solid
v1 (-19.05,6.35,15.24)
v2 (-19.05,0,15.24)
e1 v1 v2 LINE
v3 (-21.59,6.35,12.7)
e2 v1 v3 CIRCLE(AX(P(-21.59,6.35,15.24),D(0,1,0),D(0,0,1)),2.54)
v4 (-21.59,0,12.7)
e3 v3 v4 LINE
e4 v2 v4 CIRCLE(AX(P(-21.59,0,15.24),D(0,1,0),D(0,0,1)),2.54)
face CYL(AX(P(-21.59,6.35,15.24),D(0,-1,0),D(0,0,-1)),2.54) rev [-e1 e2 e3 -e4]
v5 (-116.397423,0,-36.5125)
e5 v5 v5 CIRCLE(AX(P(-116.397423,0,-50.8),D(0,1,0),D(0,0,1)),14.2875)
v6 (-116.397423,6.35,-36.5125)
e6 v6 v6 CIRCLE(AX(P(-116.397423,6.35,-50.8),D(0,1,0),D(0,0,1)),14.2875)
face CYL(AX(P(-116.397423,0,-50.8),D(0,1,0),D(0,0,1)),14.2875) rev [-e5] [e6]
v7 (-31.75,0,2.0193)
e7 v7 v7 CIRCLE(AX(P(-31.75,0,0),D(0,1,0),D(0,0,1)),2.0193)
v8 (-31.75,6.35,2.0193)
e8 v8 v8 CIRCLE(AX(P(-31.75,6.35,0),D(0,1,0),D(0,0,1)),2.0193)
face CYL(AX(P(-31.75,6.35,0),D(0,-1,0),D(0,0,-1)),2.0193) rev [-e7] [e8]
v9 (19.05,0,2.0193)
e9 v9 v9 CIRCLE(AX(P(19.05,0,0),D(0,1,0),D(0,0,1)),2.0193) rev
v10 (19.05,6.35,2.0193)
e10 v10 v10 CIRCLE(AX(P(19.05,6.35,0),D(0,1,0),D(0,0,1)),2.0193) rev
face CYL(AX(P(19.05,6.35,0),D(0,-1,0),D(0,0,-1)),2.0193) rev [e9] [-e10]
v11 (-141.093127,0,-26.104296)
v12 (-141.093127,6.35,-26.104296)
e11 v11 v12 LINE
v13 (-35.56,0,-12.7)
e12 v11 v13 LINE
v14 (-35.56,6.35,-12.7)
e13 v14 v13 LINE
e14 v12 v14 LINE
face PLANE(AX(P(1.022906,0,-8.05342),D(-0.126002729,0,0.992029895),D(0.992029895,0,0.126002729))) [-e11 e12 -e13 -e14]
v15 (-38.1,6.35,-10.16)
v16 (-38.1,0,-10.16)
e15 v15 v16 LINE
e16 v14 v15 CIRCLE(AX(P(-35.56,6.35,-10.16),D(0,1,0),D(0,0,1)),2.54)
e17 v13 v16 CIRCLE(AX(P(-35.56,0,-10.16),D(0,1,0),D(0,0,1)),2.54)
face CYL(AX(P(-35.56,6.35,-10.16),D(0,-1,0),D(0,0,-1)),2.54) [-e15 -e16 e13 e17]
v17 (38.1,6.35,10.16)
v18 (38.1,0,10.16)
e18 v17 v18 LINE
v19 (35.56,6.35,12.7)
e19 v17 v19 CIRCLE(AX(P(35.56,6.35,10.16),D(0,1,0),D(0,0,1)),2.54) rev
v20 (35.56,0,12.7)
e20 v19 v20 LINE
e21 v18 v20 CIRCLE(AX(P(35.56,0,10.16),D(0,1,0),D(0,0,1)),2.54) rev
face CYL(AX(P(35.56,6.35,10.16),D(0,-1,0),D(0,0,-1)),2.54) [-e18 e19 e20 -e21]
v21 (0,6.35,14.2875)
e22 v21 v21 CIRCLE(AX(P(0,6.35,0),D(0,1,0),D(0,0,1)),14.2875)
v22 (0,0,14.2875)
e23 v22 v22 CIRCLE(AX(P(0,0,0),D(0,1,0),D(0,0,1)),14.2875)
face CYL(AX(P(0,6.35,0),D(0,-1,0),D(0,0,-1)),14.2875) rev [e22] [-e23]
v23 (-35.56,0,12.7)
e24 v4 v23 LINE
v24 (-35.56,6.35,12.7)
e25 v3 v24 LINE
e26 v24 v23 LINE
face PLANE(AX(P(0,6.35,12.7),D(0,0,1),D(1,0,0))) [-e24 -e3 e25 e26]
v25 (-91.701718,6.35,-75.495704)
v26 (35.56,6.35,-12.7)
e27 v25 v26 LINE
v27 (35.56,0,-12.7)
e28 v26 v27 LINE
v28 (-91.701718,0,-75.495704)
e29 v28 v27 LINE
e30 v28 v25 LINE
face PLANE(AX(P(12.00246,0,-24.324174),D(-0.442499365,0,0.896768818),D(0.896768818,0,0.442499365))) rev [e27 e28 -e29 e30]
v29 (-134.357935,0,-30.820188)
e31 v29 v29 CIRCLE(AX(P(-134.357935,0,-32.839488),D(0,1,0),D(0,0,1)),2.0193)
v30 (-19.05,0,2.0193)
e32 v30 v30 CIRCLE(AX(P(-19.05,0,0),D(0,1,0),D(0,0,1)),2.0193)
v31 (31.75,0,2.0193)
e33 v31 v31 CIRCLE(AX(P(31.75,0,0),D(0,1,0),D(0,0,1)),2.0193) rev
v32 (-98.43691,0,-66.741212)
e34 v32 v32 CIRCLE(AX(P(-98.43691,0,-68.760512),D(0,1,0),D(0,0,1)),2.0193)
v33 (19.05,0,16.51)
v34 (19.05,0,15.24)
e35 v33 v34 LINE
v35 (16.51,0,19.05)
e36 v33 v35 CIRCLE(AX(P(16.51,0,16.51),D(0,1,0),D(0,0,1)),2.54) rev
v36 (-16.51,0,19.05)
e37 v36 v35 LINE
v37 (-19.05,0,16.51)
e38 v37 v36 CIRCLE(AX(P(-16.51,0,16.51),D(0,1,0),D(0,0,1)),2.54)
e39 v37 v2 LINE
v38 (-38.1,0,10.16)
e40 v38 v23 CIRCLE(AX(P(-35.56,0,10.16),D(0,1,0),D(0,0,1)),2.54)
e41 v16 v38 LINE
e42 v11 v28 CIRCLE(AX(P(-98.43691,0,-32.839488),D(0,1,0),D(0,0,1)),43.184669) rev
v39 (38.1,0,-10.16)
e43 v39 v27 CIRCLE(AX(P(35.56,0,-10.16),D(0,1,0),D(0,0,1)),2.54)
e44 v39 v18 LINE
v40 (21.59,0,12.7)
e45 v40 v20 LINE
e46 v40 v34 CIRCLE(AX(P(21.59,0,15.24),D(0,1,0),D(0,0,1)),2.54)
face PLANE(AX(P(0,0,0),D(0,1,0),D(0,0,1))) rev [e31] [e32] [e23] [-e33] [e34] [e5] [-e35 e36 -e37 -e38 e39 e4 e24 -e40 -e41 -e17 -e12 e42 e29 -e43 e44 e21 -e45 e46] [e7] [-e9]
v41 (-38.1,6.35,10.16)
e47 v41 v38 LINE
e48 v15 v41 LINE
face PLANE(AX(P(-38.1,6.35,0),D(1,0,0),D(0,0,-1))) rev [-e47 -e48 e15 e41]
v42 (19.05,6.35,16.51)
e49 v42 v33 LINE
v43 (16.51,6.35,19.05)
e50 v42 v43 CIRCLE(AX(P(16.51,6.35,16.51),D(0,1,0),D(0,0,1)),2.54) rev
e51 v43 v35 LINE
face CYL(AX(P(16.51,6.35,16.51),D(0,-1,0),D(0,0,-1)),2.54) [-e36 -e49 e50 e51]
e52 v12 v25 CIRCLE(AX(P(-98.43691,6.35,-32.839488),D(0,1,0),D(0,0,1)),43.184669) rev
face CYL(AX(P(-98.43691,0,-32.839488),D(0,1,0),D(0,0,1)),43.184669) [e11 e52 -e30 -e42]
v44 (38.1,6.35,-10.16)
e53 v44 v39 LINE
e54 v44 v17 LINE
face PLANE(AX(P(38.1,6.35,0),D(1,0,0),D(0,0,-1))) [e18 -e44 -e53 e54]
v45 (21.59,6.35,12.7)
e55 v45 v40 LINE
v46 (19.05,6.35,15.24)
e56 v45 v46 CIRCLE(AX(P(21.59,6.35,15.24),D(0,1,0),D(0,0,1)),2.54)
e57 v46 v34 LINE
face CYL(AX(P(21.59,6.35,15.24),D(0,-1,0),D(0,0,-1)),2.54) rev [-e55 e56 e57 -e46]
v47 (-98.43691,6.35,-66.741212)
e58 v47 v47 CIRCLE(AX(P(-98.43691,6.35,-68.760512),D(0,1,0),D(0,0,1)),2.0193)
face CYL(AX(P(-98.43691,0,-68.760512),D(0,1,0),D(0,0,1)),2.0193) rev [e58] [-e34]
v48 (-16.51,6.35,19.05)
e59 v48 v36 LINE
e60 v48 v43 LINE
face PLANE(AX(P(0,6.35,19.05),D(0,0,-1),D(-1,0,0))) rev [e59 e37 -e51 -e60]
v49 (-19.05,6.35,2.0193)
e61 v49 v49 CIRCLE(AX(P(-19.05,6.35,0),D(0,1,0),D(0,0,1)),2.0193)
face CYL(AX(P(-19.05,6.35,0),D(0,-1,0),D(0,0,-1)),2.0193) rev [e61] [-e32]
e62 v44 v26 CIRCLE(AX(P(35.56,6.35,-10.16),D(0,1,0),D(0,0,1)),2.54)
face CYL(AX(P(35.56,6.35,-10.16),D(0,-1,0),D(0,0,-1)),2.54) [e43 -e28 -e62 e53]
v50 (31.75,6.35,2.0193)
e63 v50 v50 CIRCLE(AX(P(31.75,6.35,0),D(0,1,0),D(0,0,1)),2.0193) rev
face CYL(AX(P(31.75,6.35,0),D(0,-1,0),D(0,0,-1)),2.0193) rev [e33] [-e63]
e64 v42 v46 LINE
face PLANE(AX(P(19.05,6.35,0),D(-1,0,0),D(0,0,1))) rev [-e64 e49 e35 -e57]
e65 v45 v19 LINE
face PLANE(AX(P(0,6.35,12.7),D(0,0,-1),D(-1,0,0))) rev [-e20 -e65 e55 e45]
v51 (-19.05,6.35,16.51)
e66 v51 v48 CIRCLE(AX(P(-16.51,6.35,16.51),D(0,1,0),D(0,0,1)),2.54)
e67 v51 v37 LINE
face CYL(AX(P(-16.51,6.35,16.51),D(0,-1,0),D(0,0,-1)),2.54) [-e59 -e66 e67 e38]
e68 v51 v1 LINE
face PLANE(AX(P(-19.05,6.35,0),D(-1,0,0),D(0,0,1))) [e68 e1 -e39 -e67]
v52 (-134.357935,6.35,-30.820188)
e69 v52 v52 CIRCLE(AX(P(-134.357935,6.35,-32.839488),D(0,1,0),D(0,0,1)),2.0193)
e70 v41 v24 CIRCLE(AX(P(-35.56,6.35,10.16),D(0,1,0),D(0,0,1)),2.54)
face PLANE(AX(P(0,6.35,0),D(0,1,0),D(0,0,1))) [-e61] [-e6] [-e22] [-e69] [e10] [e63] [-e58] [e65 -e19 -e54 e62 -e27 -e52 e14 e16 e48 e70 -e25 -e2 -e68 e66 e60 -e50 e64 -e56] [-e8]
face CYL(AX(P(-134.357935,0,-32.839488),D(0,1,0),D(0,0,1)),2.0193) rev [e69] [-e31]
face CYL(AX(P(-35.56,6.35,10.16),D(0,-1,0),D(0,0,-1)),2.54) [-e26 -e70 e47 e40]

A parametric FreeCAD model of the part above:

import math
import FreeCAD as App
import Part
import Sketcher

V = App.Vector
Q = App.Units.Quantity

doc = App.newDocument("Part")
params = doc.addObject("Spreadsheet::Sheet", "Params")
for row, (alias, value) in enumerate([
    ("sketch1_radius", "0.1 in"),
    ("sketch1_diameter", "0.159 in"),
    ("sketch1_diameter2", "1.125 in"),
    ("sketch1_width", "1.3 in"),
    ("sketch1_height", "0.8 in"),
    ("pad1_length", "0.25 in"),
    ("sketch2_radius", "0.1 in"),
    ("sketch2_diameter", "0.159 in"),
    ("sketch2_diameter2", "1.125 in"),
    ("sketch2_width", "1.3 in"),
    ("sketch2_width2", "0.55 in"),
    ("pad2_length", "0.25 in"),
], start=1):
    params.set(f"A{row}", alias)
    params.set(f"B{row}", "=" + value)
    params.setAlias(f"B{row}", alias)

body = doc.addObject("PartDesign::Body", "Body")

sketch1 = doc.addObject("Sketcher::SketchObject", "Sketch")
body.addObject(sketch1)
sketch1.AttachmentSupport = (doc.XZ_Plane, [""])
sketch1.MapMode = "FlatFace"
sketch1.addGeometry(Part.LineSegment(V(-16.5, 19.1, 0), V(16.5, 19.1, 0)), False)
sketch1.addGeometry(Part.ArcOfCircle(Part.Circle(V(16.5, 16.5, 0), V(0, 0, 1), 2.5), math.radians(0), math.radians(90)), False)
sketch1.addGeometry(Part.LineSegment(V(19.1, 16.5, 0), V(19.1, 15.2, 0)), False)
sketch1.addGeometry(Part.ArcOfCircle(Part.Circle(V(21.6, 15.2, 0), V(0, 0, 1), 2.5), math.radians(-180), math.radians(-90)), False)
sketch1.addGeometry(Part.LineSegment(V(21.6, 12.7, 0), V(35.6, 12.7, 0)), False)
sketch1.addGeometry(Part.ArcOfCircle(Part.Circle(V(35.6, 10.2, 0), V(0, 0, 1), 2.5), math.radians(0), math.radians(90)), False)
sketch1.addGeometry(Part.LineSegment(V(38.1, 10.2, 0), V(38.1, -10.2, 0)), False)
sketch1.addGeometry(Part.ArcOfCircle(Part.Circle(V(35.6, -10.2, 0), V(0, 0, 1), 2.5), math.radians(-90), math.radians(0)), False)
sketch1.addGeometry(Part.LineSegment(V(35.6, -12.7, 0), V(21.6, -12.7, 0)), False)
sketch1.addGeometry(Part.ArcOfCircle(Part.Circle(V(21.6, -15.2, 0), V(0, 0, 1), 2.5), math.radians(90), math.radians(180)), False)
sketch1.addGeometry(Part.LineSegment(V(19.1, -15.2, 0), V(19.1, -16.5, 0)), False)
sketch1.addGeometry(Part.ArcOfCircle(Part.Circle(V(16.5, -16.5, 0), V(0, 0, 1), 2.5), math.radians(-90), math.radians(0)), False)
sketch1.addGeometry(Part.LineSegment(V(16.5, -19.1, 0), V(-16.5, -19.1, 0)), False)
sketch1.addGeometry(Part.ArcOfCircle(Part.Circle(V(-16.5, -16.5, 0), V(0, 0, 1), 2.5), math.radians(-180), math.radians(-90)), False)
sketch1.addGeometry(Part.LineSegment(V(-19.1, -16.5, 0), V(-19.1, -15.2, 0)), False)
sketch1.addGeometry(Part.ArcOfCircle(Part.Circle(V(-21.6, -15.2, 0), V(0, 0, 1), 2.5), math.radians(0), math.radians(90)), False)
sketch1.addGeometry(Part.LineSegment(V(-21.6, -12.7, 0), V(-35.6, -12.7, 0)), False)
sketch1.addGeometry(Part.ArcOfCircle(Part.Circle(V(-35.6, -10.2, 0), V(0, 0, 1), 2.5), math.radians(-180), math.radians(-90)), False)
sketch1.addGeometry(Part.LineSegment(V(-38.1, -10.2, 0), V(-38.1, 10.2, 0)), False)
sketch1.addGeometry(Part.ArcOfCircle(Part.Circle(V(-35.6, 10.2, 0), V(0, 0, 1), 2.5), math.radians(90), math.radians(180)), False)
sketch1.addGeometry(Part.LineSegment(V(-35.6, 12.7, 0), V(-21.6, 12.7, 0)), False)
sketch1.addGeometry(Part.ArcOfCircle(Part.Circle(V(-21.6, 15.2, 0), V(0, 0, 1), 2.5), math.radians(-90), math.radians(0)), False)
sketch1.addGeometry(Part.LineSegment(V(-19.1, 15.2, 0), V(-19.1, 16.5, 0)), False)
sketch1.addGeometry(Part.ArcOfCircle(Part.Circle(V(-16.5, 16.5, 0), V(0, 0, 1), 2.5), math.radians(90), math.radians(180)), False)
sketch1.addGeometry(Part.Circle(V(-31.8, 0, 0), V(0, 0, 1), 2), False)
sketch1.addGeometry(Part.Circle(V(-19.1, 0, 0), V(0, 0, 1), 2), False)
sketch1.addGeometry(Part.Circle(V(0, 0, 0), V(0, 0, 1), 14.3), False)
sketch1.addGeometry(Part.Circle(V(19.1, 0, 0), V(0, 0, 1), 2), False)
sketch1.addGeometry(Part.Circle(V(31.8, 0, 0), V(0, 0, 1), 2), False)
sketch1.addConstraint(Sketcher.Constraint("Tangent", 0, 2, 1, 2))
sketch1.addConstraint(Sketcher.Constraint("Tangent", 1, 1, 2, 1))
sketch1.addConstraint(Sketcher.Constraint("Tangent", 2, 2, 3, 1))
sketch1.addConstraint(Sketcher.Constraint("Tangent", 3, 2, 4, 1))
sketch1.addConstraint(Sketcher.Constraint("Tangent", 4, 2, 5, 2))
sketch1.addConstraint(Sketcher.Constraint("Tangent", 5, 1, 6, 1))
sketch1.addConstraint(Sketcher.Constraint("Tangent", 6, 2, 7, 2))
sketch1.addConstraint(Sketcher.Constraint("Tangent", 7, 1, 8, 1))
sketch1.addConstraint(Sketcher.Constraint("Tangent", 8, 2, 9, 1))
sketch1.addConstraint(Sketcher.Constraint("Tangent", 9, 2, 10, 1))
sketch1.addConstraint(Sketcher.Constraint("Tangent", 10, 2, 11, 2))
sketch1.addConstraint(Sketcher.Constraint("Tangent", 11, 1, 12, 1))
sketch1.addConstraint(Sketcher.Constraint("Tangent", 12, 2, 13, 2))
sketch1.addConstraint(Sketcher.Constraint("Tangent", 13, 1, 14, 1))
sketch1.addConstraint(Sketcher.Constraint("Tangent", 14, 2, 15, 1))
sketch1.addConstraint(Sketcher.Constraint("Tangent", 15, 2, 16, 1))
sketch1.addConstraint(Sketcher.Constraint("Tangent", 16, 2, 17, 2))
sketch1.addConstraint(Sketcher.Constraint("Tangent", 17, 1, 18, 1))
sketch1.addConstraint(Sketcher.Constraint("Tangent", 18, 2, 19, 2))
sketch1.addConstraint(Sketcher.Constraint("Tangent", 19, 1, 20, 1))
sketch1.addConstraint(Sketcher.Constraint("Tangent", 20, 2, 21, 1))
sketch1.addConstraint(Sketcher.Constraint("Tangent", 21, 2, 22, 1))
sketch1.addConstraint(Sketcher.Constraint("Tangent", 22, 2, 23, 2))
sketch1.addConstraint(Sketcher.Constraint("Tangent", 23, 1, 0, 1))
sketch1.addConstraint(Sketcher.Constraint("Horizontal", 0))
sketch1.addConstraint(Sketcher.Constraint("Vertical", 2))
sketch1.addConstraint(Sketcher.Constraint("Horizontal", 4))
sketch1.addConstraint(Sketcher.Constraint("Vertical", 6))
sketch1.addConstraint(Sketcher.Constraint("Horizontal", 8))
sketch1.addConstraint(Sketcher.Constraint("Vertical", 10))
sketch1.addConstraint(Sketcher.Constraint("Horizontal", 12))
sketch1.addConstraint(Sketcher.Constraint("Vertical", 14))
sketch1.addConstraint(Sketcher.Constraint("Horizontal", 16))
sketch1.addConstraint(Sketcher.Constraint("Vertical", 18))
sketch1.addConstraint(Sketcher.Constraint("Horizontal", 20))
sketch1.addConstraint(Sketcher.Constraint("Vertical", 22))
sketch1.addConstraint(Sketcher.Constraint("Coincident", 26, 3, -1, 1))
sketch1.addConstraint(Sketcher.Constraint("Equal", 1, 3))
sketch1.addConstraint(Sketcher.Constraint("Equal", 3, 5))
sketch1.addConstraint(Sketcher.Constraint("Equal", 5, 7))
sketch1.addConstraint(Sketcher.Constraint("Equal", 7, 9))
sketch1.addConstraint(Sketcher.Constraint("Equal", 9, 11))
sketch1.addConstraint(Sketcher.Constraint("Equal", 11, 13))
sketch1.addConstraint(Sketcher.Constraint("Equal", 13, 15))
sketch1.addConstraint(Sketcher.Constraint("Equal", 15, 17))
sketch1.addConstraint(Sketcher.Constraint("Equal", 17, 19))
sketch1.addConstraint(Sketcher.Constraint("Equal", 19, 21))
sketch1.addConstraint(Sketcher.Constraint("Equal", 21, 23))
sketch1.addConstraint(Sketcher.Constraint("Equal", 24, 25))
sketch1.addConstraint(Sketcher.Constraint("Equal", 25, 27))
sketch1.addConstraint(Sketcher.Constraint("Equal", 27, 28))
sketch1.addConstraint(Sketcher.Constraint("Symmetric", 1, 3, 13, 3, -1, 1))
sketch1.addConstraint(Sketcher.Constraint("Symmetric", 5, 3, 17, 3, -1, 1))
sketch1.addConstraint(Sketcher.Constraint("Symmetric", 9, 3, 21, 3, -1, 1))
sketch1.addConstraint(Sketcher.Constraint("Symmetric", 25, 3, 27, 3, -1, 1))
sketch1.addConstraint(Sketcher.Constraint("Symmetric", 24, 3, 28, 3, -1, 1))
sketch1.addConstraint(Sketcher.Constraint("Symmetric", 9, 3, 15, 3, -2))
sketch1.addConstraint(Sketcher.Constraint("PointOnObject", 24, 3, -1))
sketch1.addConstraint(Sketcher.Constraint("PointOnObject", 25, 3, -1))
sketch1.addConstraint(Sketcher.Constraint("Vertical", 27, 3, 1, 1))
sketch1.addConstraint(Sketcher.Constraint("Radius", 1, Q("0.1 in")))
sketch1.addConstraint(Sketcher.Constraint("Diameter", 24, Q("0.159 in")))
sketch1.addConstraint(Sketcher.Constraint("Diameter", 26, Q("1.125 in")))
sketch1.addConstraint(Sketcher.Constraint("DistanceX", 0, 1, 0, 2, Q("1.3 in")))
sketch1.addConstraint(Sketcher.Constraint("DistanceY", 6, 2, 6, 1, Q("0.8 in")))
sketch1.addConstraint(Sketcher.Constraint("DistanceX", 4, 1, 4, 2, Q("0.55 in")))
sketch1.addConstraint(Sketcher.Constraint("DistanceY", 2, 2, 2, 1, Q("0.05 in")))
sketch1.addConstraint(Sketcher.Constraint("DistanceX", 24, 3, 15, 3, Q("0.4 in")))
sketch1.setExpression("Constraints[60]", "Params.sketch1_radius")
sketch1.setExpression("Constraints[61]", "Params.sketch1_diameter")
sketch1.setExpression("Constraints[62]", "Params.sketch1_diameter2")
sketch1.setExpression("Constraints[63]", "Params.sketch1_width")
sketch1.setExpression("Constraints[64]", "Params.sketch1_height")
pad1 = doc.addObject("PartDesign::Pad", "Pad")
body.addObject(pad1)
pad1.Profile = sketch1
pad1.setExpression("Length", "Params.pad1_length")
pad1.Reversed = True

sketch2 = doc.addObject("Sketcher::SketchObject", "Sketch001")
body.addObject(sketch2)
sketch2.AttachmentSupport = (doc.XZ_Plane, [""])
sketch2.MapMode = "FlatFace"
sketch2.AttachmentOffset = App.Placement(V(0, 0, -0.25 * 25.4), App.Rotation())
sketch2.addGeometry(Part.ArcOfCircle(Part.Circle(V(-98.4, -32.8, 0), V(0, 0, 1), 43.2), math.radians(171), math.radians(279)), False)
sketch2.addGeometry(Part.LineSegment(V(-141.1, -26.1, 0), V(-35.6, -12.7, 0)), False)
sketch2.addGeometry(Part.LineSegment(V(-35.6, -12.7, 0), V(-21.6, -12.7, 0)), False)
sketch2.addGeometry(Part.ArcOfCircle(Part.Circle(V(-21.6, -15.2, 0), V(0, 0, 1), 2.5), math.radians(0), math.radians(90)), False)
sketch2.addGeometry(Part.LineSegment(V(-19.1, -15.2, 0), V(-19.1, -16.5, 0)), False)
sketch2.addGeometry(Part.ArcOfCircle(Part.Circle(V(-16.5, -16.5, 0), V(0, 0, 1), 2.5), math.radians(-180), math.radians(-90)), False)
sketch2.addGeometry(Part.LineSegment(V(-16.5, -19.1, 0), V(16.5, -19.1, 0)), False)
sketch2.addGeometry(Part.ArcOfCircle(Part.Circle(V(16.5, -16.5, 0), V(0, 0, 1), 2.5), math.radians(-90), math.radians(0)), False)
sketch2.addGeometry(Part.LineSegment(V(19.1, -16.5, 0), V(19.1, -15.2, 0)), False)
sketch2.addGeometry(Part.ArcOfCircle(Part.Circle(V(21.6, -15.2, 0), V(0, 0, 1), 2.5), math.radians(90), math.radians(180)), False)
sketch2.addGeometry(Part.LineSegment(V(21.6, -12.7, 0), V(35.6, -12.7, 0)), False)
sketch2.addGeometry(Part.LineSegment(V(35.6, -12.7, 0), V(-91.7, -75.5, 0)), False)
sketch2.addGeometry(Part.Circle(V(-134.4, -32.8, 0), V(0, 0, 1), 2), False)
sketch2.addGeometry(Part.Circle(V(-116.4, -50.8, 0), V(0, 0, 1), 14.3), False)
sketch2.addGeometry(Part.Circle(V(-98.4, -68.8, 0), V(0, 0, 1), 2), False)
sketch2.addConstraint(Sketcher.Constraint("Coincident", 0, 1, 1, 1))
sketch2.addConstraint(Sketcher.Constraint("Coincident", 1, 2, 2, 1))
sketch2.addConstraint(Sketcher.Constraint("Tangent", 2, 2, 3, 2))
sketch2.addConstraint(Sketcher.Constraint("Tangent", 3, 1, 4, 1))
sketch2.addConstraint(Sketcher.Constraint("Tangent", 4, 2, 5, 1))
sketch2.addConstraint(Sketcher.Constraint("Tangent", 5, 2, 6, 1))
sketch2.addConstraint(Sketcher.Constraint("Tangent", 6, 2, 7, 1))
sketch2.addConstraint(Sketcher.Constraint("Tangent", 7, 2, 8, 1))
sketch2.addConstraint(Sketcher.Constraint("Tangent", 8, 2, 9, 2))
sketch2.addConstraint(Sketcher.Constraint("Tangent", 9, 1, 10, 1))
sketch2.addConstraint(Sketcher.Constraint("Coincident", 10, 2, 11, 1))
sketch2.addConstraint(Sketcher.Constraint("Coincident", 11, 2, 0, 2))
sketch2.addConstraint(Sketcher.Constraint("Horizontal", 2))
sketch2.addConstraint(Sketcher.Constraint("Vertical", 4))
sketch2.addConstraint(Sketcher.Constraint("Horizontal", 6))
sketch2.addConstraint(Sketcher.Constraint("Vertical", 8))
sketch2.addConstraint(Sketcher.Constraint("Horizontal", 10))
sketch2.addConstraint(Sketcher.Constraint("Equal", 3, 5))
sketch2.addConstraint(Sketcher.Constraint("Equal", 5, 7))
sketch2.addConstraint(Sketcher.Constraint("Equal", 7, 9))
sketch2.addConstraint(Sketcher.Constraint("Equal", 12, 14))
sketch2.addConstraint(Sketcher.Constraint("Symmetric", 3, 3, 9, 3, -2))
sketch2.addConstraint(Sketcher.Constraint("Horizontal", 0, 3, 12, 3))
sketch2.addConstraint(Sketcher.Constraint("Vertical", 0, 3, 14, 3))
sketch2.addConstraint(Sketcher.Constraint("Equal", 2, 10))
sketch2.addConstraint(Sketcher.Constraint("Radius", 3, Q("0.1 in")))
sketch2.addConstraint(Sketcher.Constraint("Diameter", 12, Q("0.159 in")))
sketch2.addConstraint(Sketcher.Constraint("Diameter", 13, Q("1.125 in")))
sketch2.addConstraint(Sketcher.Constraint("DistanceX", 6, 1, 6, 2, Q("1.3 in")))
sketch2.addConstraint(Sketcher.Constraint("DistanceY", 13, 3, -1, 1, Q("2 in")))
sketch2.addConstraint(Sketcher.Constraint("DistanceX", 2, 1, 2, 2, Q("0.55 in")))
sketch2.addConstraint(Sketcher.Constraint("DistanceY", 4, 2, 4, 1, Q("0.05 in")))
sketch2.addConstraint(Sketcher.Constraint("DistanceY", 3, 3, -1, 1, Q("0.6 in")))
sketch2.addConstraint(Sketcher.Constraint("Radius", 0, Q("43.184669 mm")))
sketch2.addConstraint(Sketcher.Constraint("Distance", 11, Q("141.9114 mm")))
sketch2.addConstraint(Sketcher.Constraint("DistanceX", 0, 3, -1, 1, Q("98.43691 mm")))
sketch2.addConstraint(Sketcher.Constraint("DistanceX", 11, 2, -1, 1, Q("91.701718 mm")))
sketch2.addConstraint(Sketcher.Constraint("DistanceX", 0, 1, 11, 2, Q("49.391409 mm")))
sketch2.addConstraint(Sketcher.Constraint("DistanceX", 12, 3, -1, 1, Q("134.357935 mm")))
sketch2.addConstraint(Sketcher.Constraint("DistanceX", 13, 3, -1, 1, Q("116.397423 mm")))
sketch2.addConstraint(Sketcher.Constraint("DistanceY", 14, 3, -1, 1, Q("68.760512 mm")))
sketch2.setExpression("Constraints[25]", "Params.sketch2_radius")
sketch2.setExpression("Constraints[26]", "Params.sketch2_diameter")
sketch2.setExpression("Constraints[27]", "Params.sketch2_diameter2")
sketch2.setExpression("Constraints[28]", "Params.sketch2_width")
sketch2.setExpression("Constraints[30]", "Params.sketch2_width2")
pad2 = doc.addObject("PartDesign::Pad", "Pad001")
body.addObject(pad2)
pad2.Profile = sketch2
pad2.setExpression("Length", "Params.pad2_length")

doc.recompute()
